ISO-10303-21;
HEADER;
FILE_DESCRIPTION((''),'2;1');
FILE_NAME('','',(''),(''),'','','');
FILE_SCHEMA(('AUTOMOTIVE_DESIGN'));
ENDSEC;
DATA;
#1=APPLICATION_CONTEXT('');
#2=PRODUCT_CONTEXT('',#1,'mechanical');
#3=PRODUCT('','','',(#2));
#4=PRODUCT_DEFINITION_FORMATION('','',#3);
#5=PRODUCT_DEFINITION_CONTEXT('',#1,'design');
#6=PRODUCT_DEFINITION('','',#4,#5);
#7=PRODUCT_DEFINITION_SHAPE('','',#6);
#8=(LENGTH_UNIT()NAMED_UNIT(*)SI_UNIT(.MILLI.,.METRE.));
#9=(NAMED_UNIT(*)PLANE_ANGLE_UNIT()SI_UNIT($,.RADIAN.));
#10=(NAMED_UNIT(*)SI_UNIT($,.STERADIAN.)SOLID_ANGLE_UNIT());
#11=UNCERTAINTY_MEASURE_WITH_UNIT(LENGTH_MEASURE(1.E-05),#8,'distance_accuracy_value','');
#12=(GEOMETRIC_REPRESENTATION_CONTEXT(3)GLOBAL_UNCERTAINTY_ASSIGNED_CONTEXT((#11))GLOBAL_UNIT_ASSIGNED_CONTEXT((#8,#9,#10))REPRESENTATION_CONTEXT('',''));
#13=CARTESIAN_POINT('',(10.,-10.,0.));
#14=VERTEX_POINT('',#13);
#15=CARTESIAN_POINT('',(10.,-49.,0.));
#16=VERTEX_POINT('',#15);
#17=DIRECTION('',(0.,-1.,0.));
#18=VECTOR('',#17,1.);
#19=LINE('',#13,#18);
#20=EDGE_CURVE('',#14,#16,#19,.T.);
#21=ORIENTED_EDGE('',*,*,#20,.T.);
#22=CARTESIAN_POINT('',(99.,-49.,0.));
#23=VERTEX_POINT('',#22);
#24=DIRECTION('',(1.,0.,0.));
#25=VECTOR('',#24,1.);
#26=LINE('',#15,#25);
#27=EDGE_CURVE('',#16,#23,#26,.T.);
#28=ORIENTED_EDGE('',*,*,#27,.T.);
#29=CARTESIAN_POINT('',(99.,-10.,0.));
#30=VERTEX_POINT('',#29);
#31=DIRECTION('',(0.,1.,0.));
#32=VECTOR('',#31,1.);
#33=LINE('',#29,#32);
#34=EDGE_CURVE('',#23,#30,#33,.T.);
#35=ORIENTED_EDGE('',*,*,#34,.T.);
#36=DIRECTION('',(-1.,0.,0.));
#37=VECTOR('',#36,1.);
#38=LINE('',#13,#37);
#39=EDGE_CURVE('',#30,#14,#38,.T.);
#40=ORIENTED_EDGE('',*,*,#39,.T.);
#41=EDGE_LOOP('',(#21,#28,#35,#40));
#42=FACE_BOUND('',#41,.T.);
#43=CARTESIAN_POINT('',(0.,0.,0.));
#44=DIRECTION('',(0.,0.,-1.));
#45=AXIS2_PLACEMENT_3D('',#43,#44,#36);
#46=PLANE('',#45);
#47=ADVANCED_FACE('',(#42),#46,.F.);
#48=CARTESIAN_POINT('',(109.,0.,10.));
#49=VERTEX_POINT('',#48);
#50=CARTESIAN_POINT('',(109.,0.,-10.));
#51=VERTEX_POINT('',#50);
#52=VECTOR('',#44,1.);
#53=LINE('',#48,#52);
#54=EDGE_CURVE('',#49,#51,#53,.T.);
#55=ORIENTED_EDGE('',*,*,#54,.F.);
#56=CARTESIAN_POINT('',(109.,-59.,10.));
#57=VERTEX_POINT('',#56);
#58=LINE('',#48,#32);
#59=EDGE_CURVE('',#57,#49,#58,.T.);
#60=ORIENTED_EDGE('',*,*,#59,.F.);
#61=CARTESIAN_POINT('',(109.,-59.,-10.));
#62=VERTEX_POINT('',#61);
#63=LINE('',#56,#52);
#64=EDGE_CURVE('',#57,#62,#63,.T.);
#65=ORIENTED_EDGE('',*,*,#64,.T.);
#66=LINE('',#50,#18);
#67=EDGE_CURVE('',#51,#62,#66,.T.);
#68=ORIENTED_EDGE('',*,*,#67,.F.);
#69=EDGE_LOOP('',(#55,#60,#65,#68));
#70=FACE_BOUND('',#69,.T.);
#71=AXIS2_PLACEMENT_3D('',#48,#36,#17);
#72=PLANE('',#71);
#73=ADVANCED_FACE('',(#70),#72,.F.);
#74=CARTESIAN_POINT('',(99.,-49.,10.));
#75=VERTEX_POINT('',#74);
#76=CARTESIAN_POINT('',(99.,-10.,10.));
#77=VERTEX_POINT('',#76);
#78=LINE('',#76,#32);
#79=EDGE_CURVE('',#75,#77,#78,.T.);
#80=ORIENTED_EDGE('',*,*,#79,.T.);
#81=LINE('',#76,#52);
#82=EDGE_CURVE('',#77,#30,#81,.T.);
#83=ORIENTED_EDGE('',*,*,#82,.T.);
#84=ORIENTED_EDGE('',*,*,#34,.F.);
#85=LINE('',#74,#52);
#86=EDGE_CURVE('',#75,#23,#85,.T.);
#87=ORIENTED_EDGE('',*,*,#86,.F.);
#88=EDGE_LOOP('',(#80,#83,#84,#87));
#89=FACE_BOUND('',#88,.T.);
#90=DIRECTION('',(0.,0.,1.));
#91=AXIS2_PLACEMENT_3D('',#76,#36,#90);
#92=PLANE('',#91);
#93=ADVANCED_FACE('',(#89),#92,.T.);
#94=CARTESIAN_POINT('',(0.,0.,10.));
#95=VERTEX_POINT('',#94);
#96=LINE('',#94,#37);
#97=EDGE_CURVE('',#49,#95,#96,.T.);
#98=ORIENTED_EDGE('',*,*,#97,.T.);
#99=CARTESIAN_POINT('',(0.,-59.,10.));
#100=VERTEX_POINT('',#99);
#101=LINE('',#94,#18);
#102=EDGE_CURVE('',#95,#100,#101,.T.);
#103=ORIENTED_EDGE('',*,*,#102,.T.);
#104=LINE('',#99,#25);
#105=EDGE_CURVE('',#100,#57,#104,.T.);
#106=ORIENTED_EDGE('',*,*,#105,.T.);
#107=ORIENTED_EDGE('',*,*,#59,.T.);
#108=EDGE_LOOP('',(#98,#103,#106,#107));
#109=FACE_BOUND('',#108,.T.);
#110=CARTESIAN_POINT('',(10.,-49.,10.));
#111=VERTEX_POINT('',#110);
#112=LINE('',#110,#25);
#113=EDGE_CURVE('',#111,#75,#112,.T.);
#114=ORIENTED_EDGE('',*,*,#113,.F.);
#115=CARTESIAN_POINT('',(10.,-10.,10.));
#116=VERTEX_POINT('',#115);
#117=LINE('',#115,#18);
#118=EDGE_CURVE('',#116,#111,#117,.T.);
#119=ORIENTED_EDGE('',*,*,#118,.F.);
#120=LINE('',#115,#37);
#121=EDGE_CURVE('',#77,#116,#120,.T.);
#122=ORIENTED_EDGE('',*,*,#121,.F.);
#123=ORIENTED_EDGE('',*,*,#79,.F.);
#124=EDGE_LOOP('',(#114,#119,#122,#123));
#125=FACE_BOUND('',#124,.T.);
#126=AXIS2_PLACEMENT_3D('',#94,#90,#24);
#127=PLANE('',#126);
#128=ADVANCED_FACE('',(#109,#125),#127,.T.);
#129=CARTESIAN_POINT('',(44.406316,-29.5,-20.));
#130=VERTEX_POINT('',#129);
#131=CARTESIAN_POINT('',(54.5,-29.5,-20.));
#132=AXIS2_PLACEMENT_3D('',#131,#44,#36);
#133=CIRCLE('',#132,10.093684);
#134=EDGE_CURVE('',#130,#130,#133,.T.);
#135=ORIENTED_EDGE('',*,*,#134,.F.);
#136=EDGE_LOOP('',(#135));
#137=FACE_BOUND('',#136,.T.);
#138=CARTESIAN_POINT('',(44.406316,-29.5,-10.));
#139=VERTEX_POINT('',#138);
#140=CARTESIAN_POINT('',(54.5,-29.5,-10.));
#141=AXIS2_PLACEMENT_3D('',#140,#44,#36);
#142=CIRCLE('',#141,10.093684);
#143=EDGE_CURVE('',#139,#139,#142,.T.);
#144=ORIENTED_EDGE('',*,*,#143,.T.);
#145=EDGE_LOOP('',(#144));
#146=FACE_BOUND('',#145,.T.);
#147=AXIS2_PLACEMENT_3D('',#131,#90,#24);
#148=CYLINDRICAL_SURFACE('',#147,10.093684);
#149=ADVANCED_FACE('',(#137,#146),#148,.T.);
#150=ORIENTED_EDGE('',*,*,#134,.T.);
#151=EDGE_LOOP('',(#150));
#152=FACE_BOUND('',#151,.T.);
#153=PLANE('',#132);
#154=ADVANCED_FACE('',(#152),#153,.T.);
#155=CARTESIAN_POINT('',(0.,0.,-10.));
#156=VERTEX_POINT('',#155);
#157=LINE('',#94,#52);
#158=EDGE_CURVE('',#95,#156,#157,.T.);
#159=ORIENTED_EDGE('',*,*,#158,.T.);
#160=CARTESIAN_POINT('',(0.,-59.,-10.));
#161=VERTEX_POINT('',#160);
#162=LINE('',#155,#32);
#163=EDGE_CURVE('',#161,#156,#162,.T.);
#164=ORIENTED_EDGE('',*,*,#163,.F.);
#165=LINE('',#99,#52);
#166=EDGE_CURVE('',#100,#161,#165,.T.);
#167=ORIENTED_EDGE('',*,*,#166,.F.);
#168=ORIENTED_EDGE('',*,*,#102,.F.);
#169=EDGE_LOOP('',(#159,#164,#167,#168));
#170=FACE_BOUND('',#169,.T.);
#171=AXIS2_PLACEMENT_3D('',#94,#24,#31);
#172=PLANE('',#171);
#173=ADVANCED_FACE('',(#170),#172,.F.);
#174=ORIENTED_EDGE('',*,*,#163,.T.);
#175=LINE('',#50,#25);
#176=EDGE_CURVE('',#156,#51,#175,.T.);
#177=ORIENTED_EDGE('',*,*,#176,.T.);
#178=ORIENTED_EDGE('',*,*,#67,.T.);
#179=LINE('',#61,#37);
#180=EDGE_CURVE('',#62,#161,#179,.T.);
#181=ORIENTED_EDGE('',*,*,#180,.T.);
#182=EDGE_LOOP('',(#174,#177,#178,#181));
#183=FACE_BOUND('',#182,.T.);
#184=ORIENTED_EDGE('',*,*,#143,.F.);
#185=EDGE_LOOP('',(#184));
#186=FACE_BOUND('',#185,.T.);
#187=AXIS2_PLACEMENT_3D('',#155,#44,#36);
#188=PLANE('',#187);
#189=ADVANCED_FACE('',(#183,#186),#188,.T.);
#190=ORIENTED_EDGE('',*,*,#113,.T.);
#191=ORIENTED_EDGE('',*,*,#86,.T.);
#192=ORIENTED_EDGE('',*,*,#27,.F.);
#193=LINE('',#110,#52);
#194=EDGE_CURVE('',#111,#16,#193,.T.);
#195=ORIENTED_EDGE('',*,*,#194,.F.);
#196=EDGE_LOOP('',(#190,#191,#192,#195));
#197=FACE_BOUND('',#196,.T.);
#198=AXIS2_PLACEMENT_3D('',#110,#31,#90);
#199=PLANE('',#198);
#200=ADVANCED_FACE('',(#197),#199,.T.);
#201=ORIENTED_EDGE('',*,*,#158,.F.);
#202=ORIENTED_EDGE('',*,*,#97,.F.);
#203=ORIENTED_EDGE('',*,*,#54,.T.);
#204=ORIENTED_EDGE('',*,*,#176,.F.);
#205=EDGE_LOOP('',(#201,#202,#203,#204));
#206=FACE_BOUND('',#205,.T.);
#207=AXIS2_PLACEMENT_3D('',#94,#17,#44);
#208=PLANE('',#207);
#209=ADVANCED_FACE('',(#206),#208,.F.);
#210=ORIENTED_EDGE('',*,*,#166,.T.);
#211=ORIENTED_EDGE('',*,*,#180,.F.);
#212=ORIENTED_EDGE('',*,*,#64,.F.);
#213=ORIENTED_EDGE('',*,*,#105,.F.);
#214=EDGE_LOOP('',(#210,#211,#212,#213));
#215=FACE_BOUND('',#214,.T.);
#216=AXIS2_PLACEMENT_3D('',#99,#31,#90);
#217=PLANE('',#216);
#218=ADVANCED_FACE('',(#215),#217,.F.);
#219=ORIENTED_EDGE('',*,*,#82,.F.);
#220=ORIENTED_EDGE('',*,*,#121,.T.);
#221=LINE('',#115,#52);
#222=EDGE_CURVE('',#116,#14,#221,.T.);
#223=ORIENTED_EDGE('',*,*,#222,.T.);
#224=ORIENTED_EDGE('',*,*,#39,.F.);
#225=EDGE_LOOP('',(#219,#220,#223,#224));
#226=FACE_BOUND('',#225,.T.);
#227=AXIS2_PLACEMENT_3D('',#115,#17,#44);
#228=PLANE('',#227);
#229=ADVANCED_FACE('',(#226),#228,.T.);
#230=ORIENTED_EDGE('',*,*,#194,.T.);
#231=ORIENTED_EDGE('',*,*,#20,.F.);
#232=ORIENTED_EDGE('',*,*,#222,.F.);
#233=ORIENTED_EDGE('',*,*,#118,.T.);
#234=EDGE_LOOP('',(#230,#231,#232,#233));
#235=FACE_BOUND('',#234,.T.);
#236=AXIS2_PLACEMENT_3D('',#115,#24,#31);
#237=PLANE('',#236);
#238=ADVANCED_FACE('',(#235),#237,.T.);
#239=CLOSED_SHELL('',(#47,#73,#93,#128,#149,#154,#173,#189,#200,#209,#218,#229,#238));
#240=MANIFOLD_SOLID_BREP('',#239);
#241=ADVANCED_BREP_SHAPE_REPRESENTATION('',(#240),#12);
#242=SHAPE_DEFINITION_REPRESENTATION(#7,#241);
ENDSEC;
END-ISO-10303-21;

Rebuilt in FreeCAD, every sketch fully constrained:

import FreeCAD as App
import Part
import Sketcher
from FreeCAD import Vector

doc = App.newDocument("Part")
params = doc.addObject("Spreadsheet::Sheet", "Params")
for row, (alias, value) in enumerate([
    ("sketch1_width", "109 mm"),
    ("sketch1_width2", "89 mm"),
    ("sketch1_height", "59 mm"),
    ("sketch1_height2", "39 mm"),
    ("pad1_length", "10 mm"),
    ("sketch2_width", "109 mm"),
    ("sketch2_height", "59 mm"),
    ("pad2_length", "10 mm"),
    ("pad3_length", "10 mm"),
], start=1):
    params.set(f"A{row}", alias)
    params.set(f"B{row}", "=" + value)
    params.setAlias(f"B{row}", alias)

body = doc.addObject("PartDesign::Body", "Body")

# Sketch on XY plane
sketch1 = doc.addObject("Sketcher::SketchObject", "Sketch")
body.addObject(sketch1)
sketch1.AttachmentSupport = (doc.XY_Plane, [""])
sketch1.MapMode = "FlatFace"
sketch1.addGeometry(Part.LineSegment(Vector(0, 0, 0), Vector(0, -59, 0)), False)
sketch1.addGeometry(Part.LineSegment(Vector(0, -59, 0), Vector(109, -59, 0)), False)
sketch1.addGeometry(Part.LineSegment(Vector(109, -59, 0), Vector(109, 0, 0)), False)
sketch1.addGeometry(Part.LineSegment(Vector(109, 0, 0), Vector(0, 0, 0)), False)
sketch1.addGeometry(Part.LineSegment(Vector(99, -49, 0), Vector(10, -49, 0)), False)
sketch1.addGeometry(Part.LineSegment(Vector(10, -49, 0), Vector(10, -10, 0)), False)
sketch1.addGeometry(Part.LineSegment(Vector(10, -10, 0), Vector(99, -10, 0)), False)
sketch1.addGeometry(Part.LineSegment(Vector(99, -10, 0), Vector(99, -49, 0)), False)
sketch1.addConstraint(Sketcher.Constraint("Coincident", 0, 2, 1, 1))
sketch1.addConstraint(Sketcher.Constraint("Coincident", 1, 2, 2, 1))
sketch1.addConstraint(Sketcher.Constraint("Coincident", 2, 2, 3, 1))
sketch1.addConstraint(Sketcher.Constraint("Coincident", 3, 2, 0, 1))
sketch1.addConstraint(Sketcher.Constraint("Coincident", 4, 2, 5, 1))
sketch1.addConstraint(Sketcher.Constraint("Coincident", 5, 2, 6, 1))
sketch1.addConstraint(Sketcher.Constraint("Coincident", 6, 2, 7, 1))
sketch1.addConstraint(Sketcher.Constraint("Coincident", 7, 2, 4, 1))
sketch1.addConstraint(Sketcher.Constraint("Vertical", 0))
sketch1.addConstraint(Sketcher.Constraint("Horizontal", 1))
sketch1.addConstraint(Sketcher.Constraint("Vertical", 2))
sketch1.addConstraint(Sketcher.Constraint("Horizontal", 3))
sketch1.addConstraint(Sketcher.Constraint("Horizontal", 4))
sketch1.addConstraint(Sketcher.Constraint("Vertical", 5))
sketch1.addConstraint(Sketcher.Constraint("Horizontal", 6))
sketch1.addConstraint(Sketcher.Constraint("Vertical", 7))
sketch1.addConstraint(Sketcher.Constraint("Coincident", 3, 2, -1, 1))
sketch1.addConstraint(Sketcher.Constraint("DistanceX", 1, 1, 1, 2, 109.0))
sketch1.addConstraint(Sketcher.Constraint("DistanceX", 4, 2, 4, 1, 89.0))
sketch1.addConstraint(Sketcher.Constraint("DistanceY", 0, 2, 0, 1, 59.0))
sketch1.addConstraint(Sketcher.Constraint("DistanceY", 5, 1, 5, 2, 39.0))
sketch1.addConstraint(Sketcher.Constraint("DistanceX", -1, 1, 4, 2, 10.0))
sketch1.addConstraint(Sketcher.Constraint("DistanceY", 4, 2, -1, 1, 49.0))
sketch1.setExpression("Constraints[17]", "Params.sketch1_width")
sketch1.setExpression("Constraints[18]", "Params.sketch1_width2")
sketch1.setExpression("Constraints[19]", "Params.sketch1_height")
sketch1.setExpression("Constraints[20]", "Params.sketch1_height2")
pad1 = doc.addObject("PartDesign::Pad", "Pad")
body.addObject(pad1)
pad1.Profile = sketch1
pad1.setExpression("Length", "Params.pad1_length")

# Sketch on XY plane
sketch2 = doc.addObject("Sketcher::SketchObject", "Sketch001")
body.addObject(sketch2)
sketch2.AttachmentSupport = (doc.XY_Plane, [""])
sketch2.MapMode = "FlatFace"
sketch2.addGeometry(Part.LineSegment(Vector(109, 0, 0), Vector(109, -59, 0)), False)
sketch2.addGeometry(Part.LineSegment(Vector(109, -59, 0), Vector(0, -59, 0)), False)
sketch2.addGeometry(Part.LineSegment(Vector(0, -59, 0), Vector(0, 0, 0)), False)
sketch2.addGeometry(Part.LineSegment(Vector(0, 0, 0), Vector(109, 0, 0)), False)
sketch2.addConstraint(Sketcher.Constraint("Coincident", 0, 2, 1, 1))
sketch2.addConstraint(Sketcher.Constraint("Coincident", 1, 2, 2, 1))
sketch2.addConstraint(Sketcher.Constraint("Coincident", 2, 2, 3, 1))
sketch2.addConstraint(Sketcher.Constraint("Coincident", 3, 2, 0, 1))
sketch2.addConstraint(Sketcher.Constraint("Vertical", 0))
sketch2.addConstraint(Sketcher.Constraint("Horizontal", 1))
sketch2.addConstraint(Sketcher.Constraint("Vertical", 2))
sketch2.addConstraint(Sketcher.Constraint("Horizontal", 3))
sketch2.addConstraint(Sketcher.Constraint("Coincident", 2, 2, -1, 1))
sketch2.addConstraint(Sketcher.Constraint("DistanceX", 1, 2, 1, 1, 109.0))
sketch2.addConstraint(Sketcher.Constraint("DistanceY", 0, 2, 0, 1, 59.0))
sketch2.setExpression("Constraints[9]", "Params.sketch2_width")
sketch2.setExpression("Constraints[10]", "Params.sketch2_height")
pad2 = doc.addObject("PartDesign::Pad", "Pad001")
body.addObject(pad2)
pad2.Profile = sketch2
pad2.setExpression("Length", "Params.pad2_length")
pad2.Reversed = True

# Sketch on XY plane
sketch3 = doc.addObject("Sketcher::SketchObject", "Sketch002")
body.addObject(sketch3)
sketch3.AttachmentSupport = (doc.XY_Plane, [""])
sketch3.MapMode = "FlatFace"
sketch3.AttachmentOffset = App.Placement(Vector(0, 0, -10), App.Rotation())
sketch3.addGeometry(Part.Circle(Vector(54, -30, 0), Vector(0, 0, 1), 10), False)
sketch3.addConstraint(Sketcher.Constraint("DistanceX", -1, 1, 0, 3, 54.5))
sketch3.addConstraint(Sketcher.Constraint("DistanceY", 0, 3, -1, 1, 29.5))
sketch3.addConstraint(Sketcher.Constraint("Diameter", 0, 20.187368))
pad3 = doc.addObject("PartDesign::Pad", "Pad002")
body.addObject(pad3)
pad3.Profile = sketch3
pad3.setExpression("Length", "Params.pad3_length")
pad3.Reversed = True

doc.recompute()
